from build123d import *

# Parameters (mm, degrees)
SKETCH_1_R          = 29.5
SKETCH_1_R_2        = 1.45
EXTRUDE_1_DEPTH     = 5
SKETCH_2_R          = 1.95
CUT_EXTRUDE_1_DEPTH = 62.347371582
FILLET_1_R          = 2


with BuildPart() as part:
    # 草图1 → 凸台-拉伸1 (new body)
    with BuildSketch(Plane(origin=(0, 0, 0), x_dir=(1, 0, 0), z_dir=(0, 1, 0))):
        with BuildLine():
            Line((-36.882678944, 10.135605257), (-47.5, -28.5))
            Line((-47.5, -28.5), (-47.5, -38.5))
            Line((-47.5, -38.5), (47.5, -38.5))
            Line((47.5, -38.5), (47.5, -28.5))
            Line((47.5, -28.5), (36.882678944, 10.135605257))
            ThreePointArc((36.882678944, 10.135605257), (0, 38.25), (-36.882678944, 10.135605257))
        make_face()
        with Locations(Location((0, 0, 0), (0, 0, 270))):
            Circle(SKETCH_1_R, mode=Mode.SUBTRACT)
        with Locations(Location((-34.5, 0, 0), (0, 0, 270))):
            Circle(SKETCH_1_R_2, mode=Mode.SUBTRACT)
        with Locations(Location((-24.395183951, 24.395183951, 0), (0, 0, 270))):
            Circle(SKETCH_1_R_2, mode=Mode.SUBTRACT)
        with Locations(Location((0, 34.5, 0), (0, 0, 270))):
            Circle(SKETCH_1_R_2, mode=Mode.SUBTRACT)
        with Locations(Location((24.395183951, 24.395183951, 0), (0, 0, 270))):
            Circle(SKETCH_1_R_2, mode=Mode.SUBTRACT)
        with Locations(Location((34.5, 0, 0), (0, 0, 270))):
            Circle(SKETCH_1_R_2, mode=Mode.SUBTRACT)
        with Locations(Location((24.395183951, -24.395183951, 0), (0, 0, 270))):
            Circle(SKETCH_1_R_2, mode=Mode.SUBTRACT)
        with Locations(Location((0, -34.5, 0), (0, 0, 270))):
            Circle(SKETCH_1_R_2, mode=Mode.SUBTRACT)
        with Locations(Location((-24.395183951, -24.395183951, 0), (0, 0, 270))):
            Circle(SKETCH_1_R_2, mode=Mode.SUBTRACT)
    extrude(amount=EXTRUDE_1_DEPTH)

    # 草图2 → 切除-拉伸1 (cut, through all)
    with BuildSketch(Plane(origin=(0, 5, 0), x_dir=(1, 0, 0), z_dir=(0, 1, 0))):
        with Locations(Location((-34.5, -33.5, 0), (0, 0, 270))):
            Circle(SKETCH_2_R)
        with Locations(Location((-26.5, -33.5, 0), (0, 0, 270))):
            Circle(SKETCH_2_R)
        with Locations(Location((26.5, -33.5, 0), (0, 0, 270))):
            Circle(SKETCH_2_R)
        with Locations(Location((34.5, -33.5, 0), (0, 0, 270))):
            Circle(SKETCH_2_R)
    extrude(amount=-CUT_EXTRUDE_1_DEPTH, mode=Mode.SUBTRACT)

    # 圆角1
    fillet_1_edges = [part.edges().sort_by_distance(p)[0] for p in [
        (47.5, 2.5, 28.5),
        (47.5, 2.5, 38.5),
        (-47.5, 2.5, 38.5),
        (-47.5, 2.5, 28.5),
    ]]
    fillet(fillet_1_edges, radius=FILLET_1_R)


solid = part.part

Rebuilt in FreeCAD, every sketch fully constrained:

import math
import FreeCAD as App
import Part
import Sketcher
from FreeCAD import Vector
Q = App.Units.Quantity


def edges_at(feature, points):
    """Names of the edges that pass closest to the given points."""
    edges = feature.Shape.Edges
    near = lambda p: min(range(len(edges)), key=lambda i: edges[i].distToShape(Part.Vertex(*p))[0])
    return sorted({f"Edge{near(p) + 1}" for p in points})

doc = App.newDocument("Part")
body = doc.addObject("PartDesign::Body", "Body")

sketch1 = body.newObject("Sketcher::SketchObject", "Sketch")
sketch1.AttachmentSupport = (doc.getObject("XZ_Plane"), [""])
sketch1.MapMode = "FlatFace"
sketch1.addGeometry(Part.LineSegment(Vector(-36.9, -10.1, 0), Vector(-47.5, 28.5, 0)), False)
sketch1.addGeometry(Part.LineSegment(Vector(-47.5, 28.5, 0), Vector(-47.5, 38.5, 0)), False)
sketch1.addGeometry(Part.LineSegment(Vector(-47.5, 38.5, 0), Vector(47.5, 38.5, 0)), False)
sketch1.addGeometry(Part.LineSegment(Vector(47.5, 38.5, 0), Vector(47.5, 28.5, 0)), False)
sketch1.addGeometry(Part.LineSegment(Vector(47.5, 28.5, 0), Vector(36.9, -10.1, 0)), False)
sketch1.addGeometry(Part.ArcOfCircle(Part.Circle(Vector(0, 0, 0), Vector(0, 0, 1), 38.2), math.radians(-165), math.radians(-15)), False)
sketch1.addGeometry(Part.Circle(Vector(-24.4, 24.4, 0), Vector(0, 0, 1), 1.4), False)
sketch1.addGeometry(Part.Circle(Vector(0, 34.5, 0), Vector(0, 0, 1), 1.4), False)
sketch1.addGeometry(Part.Circle(Vector(24.4, 24.4, 0), Vector(0, 0, 1), 1.4), False)
sketch1.addGeometry(Part.Circle(Vector(-34.5, 0, 0), Vector(0, 0, 1), 1.4), False)
sketch1.addGeometry(Part.Circle(Vector(-24.4, -24.4, 0), Vector(0, 0, 1), 1.4), False)
sketch1.addGeometry(Part.Circle(Vector(0, 0, 0), Vector(0, 0, 1), 29.5), False)
sketch1.addGeometry(Part.Circle(Vector(34.5, 0, 0), Vector(0, 0, 1), 1.4), False)
sketch1.addGeometry(Part.Circle(Vector(0, -34.5, 0), Vector(0, 0, 1), 1.4), False)
sketch1.addGeometry(Part.Circle(Vector(24.4, -24.4, 0), Vector(0, 0, 1), 1.4), False)
sketch1.addConstraint(Sketcher.Constraint("Coincident", 0, 2, 1, 1))
sketch1.addConstraint(Sketcher.Constraint("Coincident", 1, 2, 2, 1))
sketch1.addConstraint(Sketcher.Constraint("Coincident", 2, 2, 3, 1))
sketch1.addConstraint(Sketcher.Constraint("Coincident", 3, 2, 4, 1))
sketch1.addConstraint(Sketcher.Constraint("Tangent", 4, 2, 5, 2))
sketch1.addConstraint(Sketcher.Constraint("Tangent", 5, 1, 0, 1))
sketch1.addConstraint(Sketcher.Constraint("Vertical", 1))
sketch1.addConstraint(Sketcher.Constraint("Horizontal", 2))
sketch1.addConstraint(Sketcher.Constraint("Vertical", 3))
sketch1.addConstraint(Sketcher.Constraint("Coincident", 5, 3, -1, 1))
sketch1.addConstraint(Sketcher.Constraint("Coincident", 11, 3, -1, 1))
sketch1.addConstraint(Sketcher.Constraint("Equal", 6, 7))
sketch1.addConstraint(Sketcher.Constraint("Equal", 7, 8))
sketch1.addConstraint(Sketcher.Constraint("Equal", 8, 9))
sketch1.addConstraint(Sketcher.Constraint("Equal", 9, 10))
sketch1.addConstraint(Sketcher.Constraint("Equal", 10, 12))
sketch1.addConstraint(Sketcher.Constraint("Equal", 12, 13))
sketch1.addConstraint(Sketcher.Constraint("Equal", 13, 14))
sketch1.addConstraint(Sketcher.Constraint("Symmetric", 8, 3, 10, 3, -1, 1))
sketch1.addConstraint(Sketcher.Constraint("Symmetric", 9, 3, 12, 3, -1, 1))
sketch1.addConstraint(Sketcher.Constraint("Symmetric", 7, 3, 13, 3, -1, 1))
sketch1.addConstraint(Sketcher.Constraint("Symmetric", 6, 3, 14, 3, -1, 1))
sketch1.addConstraint(Sketcher.Constraint("Symmetric", 6, 3, 8, 3, -2))
sketch1.addConstraint(Sketcher.Constraint("Symmetric", 0, 2, 3, 2, -2))
sketch1.addConstraint(Sketcher.Constraint("PointOnObject", 7, 3, -2))
sketch1.addConstraint(Sketcher.Constraint("PointOnObject", 9, 3, -1))
sketch1.addConstraint(Sketcher.Constraint("Diameter", 11, Q("59 mm")))
sketch1.addConstraint(Sketcher.Constraint("Diameter", 6, Q("2.9 mm")))
sketch1.addConstraint(Sketcher.Constraint("DistanceX", 2, 1, 2, 2, Q("95 mm")))
sketch1.addConstraint(Sketcher.Constraint("DistanceY", 1, 1, 1, 2, Q("10 mm")))
sketch1.addConstraint(Sketcher.Constraint("Radius", 5, Q("38.25 mm")))
sketch1.addConstraint(Sketcher.Constraint("DistanceX", 0, 2, 9, 3, Q("13 mm")))
sketch1.addConstraint(Sketcher.Constraint("DistanceY", 0, 2, 7, 3, Q("6 mm")))
sketch1.addConstraint(Sketcher.Constraint("DistanceY", -1, 1, 7, 3, Q("34.5 mm")))
sketch1.addConstraint(Sketcher.Constraint("DistanceY", 14, 3, 4, 2, Q("14.259579 mm")))
sketch1.addConstraint(Sketcher.Constraint("DistanceX", 6, 3, -1, 1, Q("24.395184 mm")))
pad1 = body.newObject("PartDesign::Pad", "Pad")
pad1.Profile = sketch1
pad1.Length = 5
pad1.Reversed = True

sketch2 = body.newObject("Sketcher::SketchObject", "Sketch001")
sketch2.AttachmentSupport = (doc.getObject("XZ_Plane"), [""])
sketch2.MapMode = "FlatFace"
sketch2.AttachmentOffset = App.Placement(Vector(0, 0, -5), App.Rotation())
sketch2.addGeometry(Part.Circle(Vector(-34.5, 33.5, 0), Vector(0, 0, 1), 1.9), False)
sketch2.addGeometry(Part.Circle(Vector(-26.5, 33.5, 0), Vector(0, 0, 1), 1.9), False)
sketch2.addGeometry(Part.Circle(Vector(26.5, 33.5, 0), Vector(0, 0, 1), 1.9), False)
sketch2.addGeometry(Part.Circle(Vector(34.5, 33.5, 0), Vector(0, 0, 1), 1.9), False)
sketch2.addConstraint(Sketcher.Constraint("Equal", 0, 1))
sketch2.addConstraint(Sketcher.Constraint("Equal", 1, 2))
sketch2.addConstraint(Sketcher.Constraint("Equal", 2, 3))
sketch2.addConstraint(Sketcher.Constraint("Symmetric", 1, 3, 2, 3, -2))
sketch2.addConstraint(Sketcher.Constraint("Symmetric", 0, 3, 3, 3, -2))
sketch2.addConstraint(Sketcher.Constraint("Horizontal", 0, 3, 1, 3))
sketch2.addConstraint(Sketcher.Constraint("Diameter", 0, Q("3.9 mm")))
sketch2.addConstraint(Sketcher.Constraint("DistanceX", 0, 3, 1, 3, Q("8 mm")))
sketch2.addConstraint(Sketcher.Constraint("DistanceX", 1, 3, 2, 3, Q("53 mm")))
sketch2.addConstraint(Sketcher.Constraint("DistanceY", -1, 1, 0, 3, Q("33.5 mm")))
pocket1 = body.newObject("PartDesign::Pocket", "Pocket")
pocket1.Profile = sketch2
pocket1.Type = "ThroughAll"
pocket1.Reversed = True
doc.recompute()

fillet = body.newObject("PartDesign::Fillet", "Fillet")
fillet.Base = (pocket1, edges_at(pocket1, [
    (47.5, 2.5, 28.5),
    (47.5, 2.5, 38.5),
    (-47.5, 2.5, 38.5),
    (-47.5, 2.5, 28.5),
]))
fillet.Radius = 2

doc.recompute()
